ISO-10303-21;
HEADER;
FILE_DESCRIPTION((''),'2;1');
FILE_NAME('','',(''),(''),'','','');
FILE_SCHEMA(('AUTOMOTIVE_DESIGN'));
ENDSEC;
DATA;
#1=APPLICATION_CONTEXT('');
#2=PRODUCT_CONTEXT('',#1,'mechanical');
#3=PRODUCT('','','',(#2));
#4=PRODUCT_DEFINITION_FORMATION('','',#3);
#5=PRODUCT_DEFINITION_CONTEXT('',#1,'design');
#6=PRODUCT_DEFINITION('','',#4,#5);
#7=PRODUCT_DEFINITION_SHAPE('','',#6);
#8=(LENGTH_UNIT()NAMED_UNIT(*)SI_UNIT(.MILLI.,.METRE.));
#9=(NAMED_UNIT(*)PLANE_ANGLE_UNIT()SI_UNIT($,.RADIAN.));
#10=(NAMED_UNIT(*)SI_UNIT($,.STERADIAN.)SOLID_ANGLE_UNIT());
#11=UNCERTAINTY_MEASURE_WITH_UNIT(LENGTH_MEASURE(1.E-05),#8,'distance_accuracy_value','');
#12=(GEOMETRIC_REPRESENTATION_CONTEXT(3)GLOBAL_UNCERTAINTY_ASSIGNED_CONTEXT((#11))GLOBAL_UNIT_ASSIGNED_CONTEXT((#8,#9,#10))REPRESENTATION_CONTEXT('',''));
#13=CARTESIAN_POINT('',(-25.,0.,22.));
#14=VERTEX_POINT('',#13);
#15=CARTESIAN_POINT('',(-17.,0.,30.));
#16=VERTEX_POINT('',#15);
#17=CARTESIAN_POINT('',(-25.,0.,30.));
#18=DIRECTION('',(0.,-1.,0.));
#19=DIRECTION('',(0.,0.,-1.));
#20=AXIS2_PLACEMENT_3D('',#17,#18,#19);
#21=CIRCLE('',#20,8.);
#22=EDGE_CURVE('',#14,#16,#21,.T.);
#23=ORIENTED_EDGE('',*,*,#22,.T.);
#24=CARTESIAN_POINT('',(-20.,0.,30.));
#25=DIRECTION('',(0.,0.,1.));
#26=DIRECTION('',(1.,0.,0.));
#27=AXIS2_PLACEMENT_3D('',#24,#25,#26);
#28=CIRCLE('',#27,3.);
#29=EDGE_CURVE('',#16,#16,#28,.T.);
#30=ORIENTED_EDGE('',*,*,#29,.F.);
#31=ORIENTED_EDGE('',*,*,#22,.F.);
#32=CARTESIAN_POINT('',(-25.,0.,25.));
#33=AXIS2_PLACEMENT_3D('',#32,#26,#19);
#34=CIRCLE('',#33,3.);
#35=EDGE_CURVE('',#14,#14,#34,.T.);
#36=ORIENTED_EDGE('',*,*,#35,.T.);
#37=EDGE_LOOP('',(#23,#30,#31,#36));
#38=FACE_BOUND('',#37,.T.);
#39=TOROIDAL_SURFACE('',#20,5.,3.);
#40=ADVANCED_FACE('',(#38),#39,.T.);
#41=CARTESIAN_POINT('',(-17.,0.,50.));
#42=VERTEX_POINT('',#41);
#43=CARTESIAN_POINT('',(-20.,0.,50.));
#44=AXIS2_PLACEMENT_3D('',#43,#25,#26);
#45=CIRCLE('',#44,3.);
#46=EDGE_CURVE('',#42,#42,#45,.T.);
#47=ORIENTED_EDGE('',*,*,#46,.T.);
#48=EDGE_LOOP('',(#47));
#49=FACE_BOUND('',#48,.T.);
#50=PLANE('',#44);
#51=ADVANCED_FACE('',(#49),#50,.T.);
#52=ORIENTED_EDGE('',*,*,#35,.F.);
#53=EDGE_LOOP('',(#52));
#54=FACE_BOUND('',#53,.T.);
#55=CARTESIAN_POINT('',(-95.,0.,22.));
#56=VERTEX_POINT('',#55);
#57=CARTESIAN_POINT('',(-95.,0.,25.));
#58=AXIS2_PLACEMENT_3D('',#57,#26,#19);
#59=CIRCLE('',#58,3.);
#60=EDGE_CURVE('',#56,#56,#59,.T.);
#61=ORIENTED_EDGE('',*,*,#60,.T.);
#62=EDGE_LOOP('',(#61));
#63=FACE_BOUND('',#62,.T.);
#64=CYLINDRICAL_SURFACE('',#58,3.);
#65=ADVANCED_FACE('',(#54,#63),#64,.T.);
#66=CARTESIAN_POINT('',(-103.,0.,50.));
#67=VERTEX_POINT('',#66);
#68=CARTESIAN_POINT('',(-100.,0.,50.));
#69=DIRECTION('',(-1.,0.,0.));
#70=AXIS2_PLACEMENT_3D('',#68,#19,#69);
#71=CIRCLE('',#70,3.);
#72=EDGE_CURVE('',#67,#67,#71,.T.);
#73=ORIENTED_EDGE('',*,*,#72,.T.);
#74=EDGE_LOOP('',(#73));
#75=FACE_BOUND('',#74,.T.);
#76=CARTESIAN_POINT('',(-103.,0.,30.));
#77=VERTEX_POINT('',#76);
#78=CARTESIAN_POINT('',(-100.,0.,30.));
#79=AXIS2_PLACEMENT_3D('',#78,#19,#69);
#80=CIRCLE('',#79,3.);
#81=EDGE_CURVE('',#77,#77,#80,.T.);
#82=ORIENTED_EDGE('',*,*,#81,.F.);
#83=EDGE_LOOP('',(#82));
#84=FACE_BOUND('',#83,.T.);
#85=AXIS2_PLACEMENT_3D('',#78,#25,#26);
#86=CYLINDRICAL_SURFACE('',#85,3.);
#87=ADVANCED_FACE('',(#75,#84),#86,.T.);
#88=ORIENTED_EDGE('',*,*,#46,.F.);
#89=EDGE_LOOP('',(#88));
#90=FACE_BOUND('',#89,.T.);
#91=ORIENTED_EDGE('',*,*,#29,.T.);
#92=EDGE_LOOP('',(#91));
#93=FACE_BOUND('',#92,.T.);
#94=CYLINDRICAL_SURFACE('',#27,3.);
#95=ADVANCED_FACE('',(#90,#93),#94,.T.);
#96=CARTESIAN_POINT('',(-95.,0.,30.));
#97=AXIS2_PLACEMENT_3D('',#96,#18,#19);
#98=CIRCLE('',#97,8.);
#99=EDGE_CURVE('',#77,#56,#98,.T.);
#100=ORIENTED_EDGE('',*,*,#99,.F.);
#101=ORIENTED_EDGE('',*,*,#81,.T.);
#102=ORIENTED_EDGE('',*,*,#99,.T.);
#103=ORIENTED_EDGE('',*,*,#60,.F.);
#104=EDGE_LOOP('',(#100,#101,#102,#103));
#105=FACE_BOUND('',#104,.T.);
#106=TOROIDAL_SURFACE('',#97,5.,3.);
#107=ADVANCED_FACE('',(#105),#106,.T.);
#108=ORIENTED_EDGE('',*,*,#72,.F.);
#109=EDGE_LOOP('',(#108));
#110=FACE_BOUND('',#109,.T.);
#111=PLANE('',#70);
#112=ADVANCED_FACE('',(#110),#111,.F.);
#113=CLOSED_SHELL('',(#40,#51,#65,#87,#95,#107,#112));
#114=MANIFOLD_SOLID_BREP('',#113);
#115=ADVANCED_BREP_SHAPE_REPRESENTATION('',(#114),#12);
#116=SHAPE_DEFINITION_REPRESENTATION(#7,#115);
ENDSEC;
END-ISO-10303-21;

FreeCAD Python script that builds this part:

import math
import FreeCAD as App
import Part
import Sketcher
Q = App.Units.Quantity

doc = App.newDocument("Part")
body = doc.addObject("PartDesign::Body", "Body")

# Sketch on XY plane
sketch1 = body.newObject("Sketcher::SketchObject", "Sketch")
sketch1.AttachmentSupport = (doc.getObject("XY_Plane"), [""])
sketch1.MapMode = "FlatFace"
sketch1.AttachmentOffset = App.Placement(App.Vector(0, 0, 50), App.Rotation())
sketch1.addGeometry(Part.Circle(App.Vector(-100, 0, 0), App.Vector(0, 0, 1), 3), False)
sketch1.addConstraint([
    Sketcher.Constraint("PointOnObject", 0, 3, -1),
    Sketcher.Constraint("Diameter", 0, Q("6 mm")),
    Sketcher.Constraint("DistanceX", 0, 3, -1, 1, Q("100 mm")),
])

# Sketch on XZ plane
sketch2 = body.newObject("Sketcher::SketchObject", "Sketch001")
sketch2.AttachmentSupport = (doc.getObject("XZ_Plane"), [""])
sketch2.MapMode = "FlatFace"
sketch2.addGeometry([
    Part.LineSegment(App.Vector(-100, 50, 0), App.Vector(-100, 30, 0)),  # 0
    Part.ArcOfCircle(Part.Circle(App.Vector(-95, 30, 0), App.Vector(0, 0, 1), 5), math.radians(180), math.radians(270)),  # 1
    Part.LineSegment(App.Vector(-95, 25, 0), App.Vector(-25, 25, 0)),  # 2
    Part.ArcOfCircle(Part.Circle(App.Vector(-25, 30, 0), App.Vector(0, 0, 1), 5), math.radians(-90), math.radians(0)),  # 3
    Part.LineSegment(App.Vector(-20, 30, 0), App.Vector(-20, 50, 0)),  # 4
], False)
sketch2.addConstraint([
    Sketcher.Constraint("Tangent", 0, 2, 1, 1),
    Sketcher.Constraint("Tangent", 1, 2, 2, 1),
    Sketcher.Constraint("Tangent", 2, 2, 3, 1),
    Sketcher.Constraint("Tangent", 3, 2, 4, 1),
    Sketcher.Constraint("Vertical", 0),
    Sketcher.Constraint("Horizontal", 2),
    Sketcher.Constraint("Vertical", 4),
    Sketcher.Constraint("Equal", 1, 3),
    Sketcher.Constraint("Horizontal", 0, 1, 4, 2),
    Sketcher.Constraint("Radius", 1, Q("5 mm")),
    Sketcher.Constraint("DistanceX", 2, 1, 2, 2, Q("70 mm")),
    Sketcher.Constraint("DistanceY", 0, 2, 0, 1, Q("20 mm")),
    Sketcher.Constraint("DistanceX", 1, 3, -1, 1, Q("95 mm")),
    Sketcher.Constraint("DistanceY", -1, 1, 1, 3, Q("30 mm")),
])
doc.recompute()

additivepipe = body.newObject("PartDesign::AdditivePipe", "AdditivePipe")
additivepipe.Profile = sketch1
additivepipe.Spine = (sketch2, ["Edge1", "Edge2", "Edge3", "Edge4", "Edge5"])

doc.recompute()
